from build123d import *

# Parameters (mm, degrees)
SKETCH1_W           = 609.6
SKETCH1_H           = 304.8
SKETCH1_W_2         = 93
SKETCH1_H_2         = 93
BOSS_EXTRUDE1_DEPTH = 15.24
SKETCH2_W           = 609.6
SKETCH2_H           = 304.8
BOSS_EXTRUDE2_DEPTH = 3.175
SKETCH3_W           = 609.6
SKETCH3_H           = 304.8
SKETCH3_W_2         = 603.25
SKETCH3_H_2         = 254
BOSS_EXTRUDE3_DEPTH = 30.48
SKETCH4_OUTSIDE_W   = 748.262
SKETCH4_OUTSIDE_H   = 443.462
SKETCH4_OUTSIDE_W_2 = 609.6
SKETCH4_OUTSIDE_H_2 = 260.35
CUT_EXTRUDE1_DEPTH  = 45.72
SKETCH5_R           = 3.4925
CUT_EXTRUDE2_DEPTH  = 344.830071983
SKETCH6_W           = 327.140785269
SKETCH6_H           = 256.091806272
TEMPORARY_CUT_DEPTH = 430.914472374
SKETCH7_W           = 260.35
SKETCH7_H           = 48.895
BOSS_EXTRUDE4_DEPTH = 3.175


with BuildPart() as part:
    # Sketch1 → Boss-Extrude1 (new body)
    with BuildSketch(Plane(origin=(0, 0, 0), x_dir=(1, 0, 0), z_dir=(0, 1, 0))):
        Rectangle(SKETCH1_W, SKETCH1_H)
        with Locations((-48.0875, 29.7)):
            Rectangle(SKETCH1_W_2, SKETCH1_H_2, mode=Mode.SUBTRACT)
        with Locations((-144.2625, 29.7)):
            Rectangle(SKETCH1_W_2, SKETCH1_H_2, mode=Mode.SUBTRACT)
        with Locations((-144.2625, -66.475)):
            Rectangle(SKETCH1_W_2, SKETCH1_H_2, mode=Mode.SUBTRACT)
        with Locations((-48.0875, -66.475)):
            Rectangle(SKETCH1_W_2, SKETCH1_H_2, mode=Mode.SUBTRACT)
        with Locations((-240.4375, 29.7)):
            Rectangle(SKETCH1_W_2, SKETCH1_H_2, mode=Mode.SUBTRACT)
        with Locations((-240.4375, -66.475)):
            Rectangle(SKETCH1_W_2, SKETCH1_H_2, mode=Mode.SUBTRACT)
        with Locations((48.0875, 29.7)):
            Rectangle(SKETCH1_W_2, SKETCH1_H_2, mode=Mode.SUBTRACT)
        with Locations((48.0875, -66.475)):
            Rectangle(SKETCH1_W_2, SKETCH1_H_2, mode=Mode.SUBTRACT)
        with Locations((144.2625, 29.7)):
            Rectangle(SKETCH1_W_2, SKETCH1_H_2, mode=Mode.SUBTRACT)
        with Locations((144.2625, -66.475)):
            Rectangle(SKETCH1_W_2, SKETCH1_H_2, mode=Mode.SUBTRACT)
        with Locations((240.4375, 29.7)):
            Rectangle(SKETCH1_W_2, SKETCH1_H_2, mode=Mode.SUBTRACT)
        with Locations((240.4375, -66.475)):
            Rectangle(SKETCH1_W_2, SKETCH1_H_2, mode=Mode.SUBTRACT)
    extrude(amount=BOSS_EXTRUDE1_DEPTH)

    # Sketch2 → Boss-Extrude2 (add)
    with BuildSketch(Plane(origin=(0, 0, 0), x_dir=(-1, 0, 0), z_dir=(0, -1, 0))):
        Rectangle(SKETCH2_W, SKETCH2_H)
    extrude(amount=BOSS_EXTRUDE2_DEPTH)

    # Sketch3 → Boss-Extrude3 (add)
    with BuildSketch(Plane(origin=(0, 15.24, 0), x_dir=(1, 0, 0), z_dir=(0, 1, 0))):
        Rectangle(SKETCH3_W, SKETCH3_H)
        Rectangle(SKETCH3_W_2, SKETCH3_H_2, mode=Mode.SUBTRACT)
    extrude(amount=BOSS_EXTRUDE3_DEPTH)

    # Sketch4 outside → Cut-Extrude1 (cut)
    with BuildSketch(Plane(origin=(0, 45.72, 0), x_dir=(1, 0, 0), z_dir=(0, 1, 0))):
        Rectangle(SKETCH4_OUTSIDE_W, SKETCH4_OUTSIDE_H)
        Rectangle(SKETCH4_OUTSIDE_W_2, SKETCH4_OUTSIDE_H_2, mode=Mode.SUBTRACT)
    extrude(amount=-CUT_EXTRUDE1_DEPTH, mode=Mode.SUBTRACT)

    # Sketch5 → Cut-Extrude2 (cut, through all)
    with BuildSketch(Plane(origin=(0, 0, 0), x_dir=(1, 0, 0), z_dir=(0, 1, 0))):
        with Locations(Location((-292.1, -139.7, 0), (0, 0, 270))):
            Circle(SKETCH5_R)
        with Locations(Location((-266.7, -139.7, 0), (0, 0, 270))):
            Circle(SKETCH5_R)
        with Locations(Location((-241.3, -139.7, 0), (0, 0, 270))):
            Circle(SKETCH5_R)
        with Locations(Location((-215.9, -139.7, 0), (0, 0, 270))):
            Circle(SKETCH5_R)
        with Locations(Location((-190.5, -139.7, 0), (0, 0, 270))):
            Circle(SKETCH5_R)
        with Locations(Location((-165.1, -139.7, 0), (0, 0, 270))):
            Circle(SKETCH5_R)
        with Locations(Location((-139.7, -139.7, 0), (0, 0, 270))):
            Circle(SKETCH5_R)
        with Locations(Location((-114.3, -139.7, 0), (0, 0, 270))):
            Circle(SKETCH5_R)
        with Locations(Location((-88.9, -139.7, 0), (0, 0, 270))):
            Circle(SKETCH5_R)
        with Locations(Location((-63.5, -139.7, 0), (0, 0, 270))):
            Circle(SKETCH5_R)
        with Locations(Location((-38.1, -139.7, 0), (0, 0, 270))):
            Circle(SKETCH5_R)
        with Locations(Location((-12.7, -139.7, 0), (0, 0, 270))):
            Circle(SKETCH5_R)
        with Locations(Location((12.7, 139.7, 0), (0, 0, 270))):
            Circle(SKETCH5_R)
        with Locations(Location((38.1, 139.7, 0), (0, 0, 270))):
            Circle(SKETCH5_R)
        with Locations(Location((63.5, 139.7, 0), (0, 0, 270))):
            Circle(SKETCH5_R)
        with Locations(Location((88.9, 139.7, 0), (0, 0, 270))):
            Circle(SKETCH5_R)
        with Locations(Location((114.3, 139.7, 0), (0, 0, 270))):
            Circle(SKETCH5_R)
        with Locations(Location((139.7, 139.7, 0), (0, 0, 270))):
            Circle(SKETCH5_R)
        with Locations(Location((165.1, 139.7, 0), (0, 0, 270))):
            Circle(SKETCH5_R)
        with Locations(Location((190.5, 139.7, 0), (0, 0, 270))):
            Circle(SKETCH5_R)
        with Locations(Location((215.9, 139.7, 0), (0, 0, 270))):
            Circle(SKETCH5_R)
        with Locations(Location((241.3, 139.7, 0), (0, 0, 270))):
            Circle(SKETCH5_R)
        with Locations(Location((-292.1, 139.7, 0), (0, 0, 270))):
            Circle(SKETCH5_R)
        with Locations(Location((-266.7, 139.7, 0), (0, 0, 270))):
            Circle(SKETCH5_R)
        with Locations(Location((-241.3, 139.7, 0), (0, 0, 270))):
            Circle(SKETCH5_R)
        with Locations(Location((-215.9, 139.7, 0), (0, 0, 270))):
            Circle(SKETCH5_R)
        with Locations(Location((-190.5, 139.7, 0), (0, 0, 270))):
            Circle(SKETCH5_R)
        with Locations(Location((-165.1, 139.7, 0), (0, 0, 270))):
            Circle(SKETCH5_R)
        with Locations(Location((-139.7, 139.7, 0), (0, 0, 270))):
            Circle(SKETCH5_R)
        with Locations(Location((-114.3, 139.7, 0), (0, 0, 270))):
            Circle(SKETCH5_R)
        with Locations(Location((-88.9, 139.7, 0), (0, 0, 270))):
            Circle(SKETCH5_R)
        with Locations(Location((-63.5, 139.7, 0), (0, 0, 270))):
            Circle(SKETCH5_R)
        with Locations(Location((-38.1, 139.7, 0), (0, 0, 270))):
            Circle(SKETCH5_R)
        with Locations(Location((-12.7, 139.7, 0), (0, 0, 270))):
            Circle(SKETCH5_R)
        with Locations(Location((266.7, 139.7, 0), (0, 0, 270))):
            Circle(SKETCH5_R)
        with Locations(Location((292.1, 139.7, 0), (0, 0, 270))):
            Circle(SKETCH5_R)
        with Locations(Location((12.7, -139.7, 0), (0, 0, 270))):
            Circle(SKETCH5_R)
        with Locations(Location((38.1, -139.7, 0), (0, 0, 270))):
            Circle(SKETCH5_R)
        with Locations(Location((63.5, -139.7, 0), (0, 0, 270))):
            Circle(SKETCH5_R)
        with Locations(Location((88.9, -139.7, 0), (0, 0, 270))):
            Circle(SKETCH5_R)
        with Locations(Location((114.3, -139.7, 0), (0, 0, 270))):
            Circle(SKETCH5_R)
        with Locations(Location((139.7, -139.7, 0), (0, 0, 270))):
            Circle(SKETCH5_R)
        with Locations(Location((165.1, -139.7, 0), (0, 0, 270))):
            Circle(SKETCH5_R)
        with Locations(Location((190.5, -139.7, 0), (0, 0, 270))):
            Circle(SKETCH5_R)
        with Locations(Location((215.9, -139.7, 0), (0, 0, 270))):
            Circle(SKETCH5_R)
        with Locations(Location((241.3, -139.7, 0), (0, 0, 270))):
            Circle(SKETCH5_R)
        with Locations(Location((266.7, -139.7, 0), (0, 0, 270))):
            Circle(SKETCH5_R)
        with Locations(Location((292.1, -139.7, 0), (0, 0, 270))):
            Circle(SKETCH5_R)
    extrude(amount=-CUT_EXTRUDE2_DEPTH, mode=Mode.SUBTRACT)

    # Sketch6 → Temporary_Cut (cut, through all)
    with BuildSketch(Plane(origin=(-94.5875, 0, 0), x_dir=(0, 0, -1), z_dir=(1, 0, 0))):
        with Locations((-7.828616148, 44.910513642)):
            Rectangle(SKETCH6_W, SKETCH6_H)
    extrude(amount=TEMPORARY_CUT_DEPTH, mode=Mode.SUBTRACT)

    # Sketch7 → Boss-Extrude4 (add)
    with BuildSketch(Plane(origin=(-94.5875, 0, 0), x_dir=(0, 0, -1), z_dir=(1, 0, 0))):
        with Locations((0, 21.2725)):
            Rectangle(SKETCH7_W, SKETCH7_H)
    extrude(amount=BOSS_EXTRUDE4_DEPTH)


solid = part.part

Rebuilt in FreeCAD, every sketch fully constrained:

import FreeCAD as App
import Part
import Sketcher
from FreeCAD import Vector
Q = App.Units.Quantity

doc = App.newDocument("Part")
body = doc.addObject("PartDesign::Body", "Body")

# Sketch on XZ plane
sketch1 = body.newObject("Sketcher::SketchObject", "Sketch")
sketch1.AttachmentSupport = (doc.getObject("XZ_Plane"), [""])
sketch1.MapMode = "FlatFace"
sketch1.addGeometry(Part.LineSegment(Vector(-305, -152, 0), Vector(-305, 152, 0)), False)
sketch1.addGeometry(Part.LineSegment(Vector(-305, 152, 0), Vector(305, 152, 0)), False)
sketch1.addGeometry(Part.LineSegment(Vector(305, 152, 0), Vector(305, -152, 0)), False)
sketch1.addGeometry(Part.LineSegment(Vector(305, -152, 0), Vector(-305, -152, 0)), False)
sketch1.addGeometry(Part.LineSegment(Vector(-194, 113, 0), Vector(-287, 113, 0)), False)
sketch1.addGeometry(Part.LineSegment(Vector(-287, 113, 0), Vector(-287, 20, 0)), False)
sketch1.addGeometry(Part.LineSegment(Vector(-287, 20, 0), Vector(-194, 20, 0)), False)
sketch1.addGeometry(Part.LineSegment(Vector(-194, 20, 0), Vector(-194, 113, 0)), False)
sketch1.addGeometry(Part.LineSegment(Vector(-98, 113, 0), Vector(-191, 113, 0)), False)
sketch1.addGeometry(Part.LineSegment(Vector(-191, 113, 0), Vector(-191, 20, 0)), False)
sketch1.addGeometry(Part.LineSegment(Vector(-191, 20, 0), Vector(-98, 20, 0)), False)
sketch1.addGeometry(Part.LineSegment(Vector(-98, 20, 0), Vector(-98, 113, 0)), False)
sketch1.addGeometry(Part.LineSegment(Vector(-2, 113, 0), Vector(-95, 113, 0)), False)
sketch1.addGeometry(Part.LineSegment(Vector(-95, 113, 0), Vector(-95, 20, 0)), False)
sketch1.addGeometry(Part.LineSegment(Vector(-95, 20, 0), Vector(-2, 20, 0)), False)
sketch1.addGeometry(Part.LineSegment(Vector(-2, 20, 0), Vector(-2, 113, 0)), False)
sketch1.addGeometry(Part.LineSegment(Vector(95, 113, 0), Vector(2, 113, 0)), False)
sketch1.addGeometry(Part.LineSegment(Vector(2, 113, 0), Vector(2, 20, 0)), False)
sketch1.addGeometry(Part.LineSegment(Vector(2, 20, 0), Vector(95, 20, 0)), False)
sketch1.addGeometry(Part.LineSegment(Vector(95, 20, 0), Vector(95, 113, 0)), False)
sketch1.addGeometry(Part.LineSegment(Vector(191, 113, 0), Vector(98, 113, 0)), False)
sketch1.addGeometry(Part.LineSegment(Vector(98, 113, 0), Vector(98, 20, 0)), False)
sketch1.addGeometry(Part.LineSegment(Vector(98, 20, 0), Vector(191, 20, 0)), False)
sketch1.addGeometry(Part.LineSegment(Vector(191, 20, 0), Vector(191, 113, 0)), False)
sketch1.addGeometry(Part.LineSegment(Vector(287, 113, 0), Vector(194, 113, 0)), False)
sketch1.addGeometry(Part.LineSegment(Vector(194, 113, 0), Vector(194, 20, 0)), False)
sketch1.addGeometry(Part.LineSegment(Vector(194, 20, 0), Vector(287, 20, 0)), False)
sketch1.addGeometry(Part.LineSegment(Vector(287, 20, 0), Vector(287, 113, 0)), False)
sketch1.addGeometry(Part.LineSegment(Vector(-194, 17, 0), Vector(-287, 17, 0)), False)
sketch1.addGeometry(Part.LineSegment(Vector(-287, 17, 0), Vector(-287, -76, 0)), False)
sketch1.addGeometry(Part.LineSegment(Vector(-287, -76, 0), Vector(-194, -76, 0)), False)
sketch1.addGeometry(Part.LineSegment(Vector(-194, -76, 0), Vector(-194, 17, 0)), False)
sketch1.addGeometry(Part.LineSegment(Vector(-98, 17, 0), Vector(-191, 17, 0)), False)
sketch1.addGeometry(Part.LineSegment(Vector(-191, 17, 0), Vector(-191, -76, 0)), False)
sketch1.addGeometry(Part.LineSegment(Vector(-191, -76, 0), Vector(-98, -76, 0)), False)
sketch1.addGeometry(Part.LineSegment(Vector(-98, -76, 0), Vector(-98, 17, 0)), False)
sketch1.addGeometry(Part.LineSegment(Vector(-2, 17, 0), Vector(-95, 17, 0)), False)
sketch1.addGeometry(Part.LineSegment(Vector(-95, 17, 0), Vector(-95, -76, 0)), False)
sketch1.addGeometry(Part.LineSegment(Vector(-95, -76, 0), Vector(-2, -76, 0)), False)
sketch1.addGeometry(Part.LineSegment(Vector(-2, -76, 0), Vector(-2, 17, 0)), False)
sketch1.addGeometry(Part.LineSegment(Vector(95, 17, 0), Vector(2, 17, 0)), False)
sketch1.addGeometry(Part.LineSegment(Vector(2, 17, 0), Vector(2, -76, 0)), False)
sketch1.addGeometry(Part.LineSegment(Vector(2, -76, 0), Vector(95, -76, 0)), False)
sketch1.addGeometry(Part.LineSegment(Vector(95, -76, 0), Vector(95, 17, 0)), False)
sketch1.addGeometry(Part.LineSegment(Vector(191, 17, 0), Vector(98, 17, 0)), False)
sketch1.addGeometry(Part.LineSegment(Vector(98, 17, 0), Vector(98, -76, 0)), False)
sketch1.addGeometry(Part.LineSegment(Vector(98, -76, 0), Vector(191, -76, 0)), False)
sketch1.addGeometry(Part.LineSegment(Vector(191, -76, 0), Vector(191, 17, 0)), False)
sketch1.addGeometry(Part.LineSegment(Vector(287, 17, 0), Vector(194, 17, 0)), False)
sketch1.addGeometry(Part.LineSegment(Vector(194, 17, 0), Vector(194, -76, 0)), False)
sketch1.addGeometry(Part.LineSegment(Vector(194, -76, 0), Vector(287, -76, 0)), False)
sketch1.addGeometry(Part.LineSegment(Vector(287, -76, 0), Vector(287, 17, 0)), False)
sketch1.addConstraint(Sketcher.Constraint("Coincident", 0, 2, 1, 1))
sketch1.addConstraint(Sketcher.Constraint("Coincident", 1, 2, 2, 1))
sketch1.addConstraint(Sketcher.Constraint("Coincident", 2, 2, 3, 1))
sketch1.addConstraint(Sketcher.Constraint("Coincident", 3, 2, 0, 1))
sketch1.addConstraint(Sketcher.Constraint("Coincident", 4, 2, 5, 1))
sketch1.addConstraint(Sketcher.Constraint("Coincident", 5, 2, 6, 1))
sketch1.addConstraint(Sketcher.Constraint("Coincident", 6, 2, 7, 1))
sketch1.addConstraint(Sketcher.Constraint("Coincident", 7, 2, 4, 1))
sketch1.addConstraint(Sketcher.Constraint("Coincident", 8, 2, 9, 1))
sketch1.addConstraint(Sketcher.Constraint("Coincident", 9, 2, 10, 1))
sketch1.addConstraint(Sketcher.Constraint("Coincident", 10, 2, 11, 1))
sketch1.addConstraint(Sketcher.Constraint("Coincident", 11, 2, 8, 1))
sketch1.addConstraint(Sketcher.Constraint("Coincident", 12, 2, 13, 1))
sketch1.addConstraint(Sketcher.Constraint("Coincident", 13, 2, 14, 1))
sketch1.addConstraint(Sketcher.Constraint("Coincident", 14, 2, 15, 1))
sketch1.addConstraint(Sketcher.Constraint("Coincident", 15, 2, 12, 1))
sketch1.addConstraint(Sketcher.Constraint("Coincident", 16, 2, 17, 1))
sketch1.addConstraint(Sketcher.Constraint("Coincident", 17, 2, 18, 1))
sketch1.addConstraint(Sketcher.Constraint("Coincident", 18, 2, 19, 1))
sketch1.addConstraint(Sketcher.Constraint("Coincident", 19, 2, 16, 1))
sketch1.addConstraint(Sketcher.Constraint("Coincident", 20, 2, 21, 1))
sketch1.addConstraint(Sketcher.Constraint("Coincident", 21, 2, 22, 1))
sketch1.addConstraint(Sketcher.Constraint("Coincident", 22, 2, 23, 1))
sketch1.addConstraint(Sketcher.Constraint("Coincident", 23, 2, 20, 1))
sketch1.addConstraint(Sketcher.Constraint("Coincident", 24, 2, 25, 1))
sketch1.addConstraint(Sketcher.Constraint("Coincident", 25, 2, 26, 1))
sketch1.addConstraint(Sketcher.Constraint("Coincident", 26, 2, 27, 1))
sketch1.addConstraint(Sketcher.Constraint("Coincident", 27, 2, 24, 1))
sketch1.addConstraint(Sketcher.Constraint("Coincident", 28, 2, 29, 1))
sketch1.addConstraint(Sketcher.Constraint("Coincident", 29, 2, 30, 1))
sketch1.addConstraint(Sketcher.Constraint("Coincident", 30, 2, 31, 1))
sketch1.addConstraint(Sketcher.Constraint("Coincident", 31, 2, 28, 1))
sketch1.addConstraint(Sketcher.Constraint("Coincident", 32, 2, 33, 1))
sketch1.addConstraint(Sketcher.Constraint("Coincident", 33, 2, 34, 1))
sketch1.addConstraint(Sketcher.Constraint("Coincident", 34, 2, 35, 1))
sketch1.addConstraint(Sketcher.Constraint("Coincident", 35, 2, 32, 1))
sketch1.addConstraint(Sketcher.Constraint("Coincident", 36, 2, 37, 1))
sketch1.addConstraint(Sketcher.Constraint("Coincident", 37, 2, 38, 1))
sketch1.addConstraint(Sketcher.Constraint("Coincident", 38, 2, 39, 1))
sketch1.addConstraint(Sketcher.Constraint("Coincident", 39, 2, 36, 1))
sketch1.addConstraint(Sketcher.Constraint("Coincident", 40, 2, 41, 1))
sketch1.addConstraint(Sketcher.Constraint("Coincident", 41, 2, 42, 1))
sketch1.addConstraint(Sketcher.Constraint("Coincident", 42, 2, 43, 1))
sketch1.addConstraint(Sketcher.Constraint("Coincident", 43, 2, 40, 1))
sketch1.addConstraint(Sketcher.Constraint("Coincident", 44, 2, 45, 1))
sketch1.addConstraint(Sketcher.Constraint("Coincident", 45, 2, 46, 1))
sketch1.addConstraint(Sketcher.Constraint("Coincident", 46, 2, 47, 1))
sketch1.addConstraint(Sketcher.Constraint("Coincident", 47, 2, 44, 1))
sketch1.addConstraint(Sketcher.Constraint("Coincident", 48, 2, 49, 1))
sketch1.addConstraint(Sketcher.Constraint("Coincident", 49, 2, 50, 1))
sketch1.addConstraint(Sketcher.Constraint("Coincident", 50, 2, 51, 1))
sketch1.addConstraint(Sketcher.Constraint("Coincident", 51, 2, 48, 1))
sketch1.addConstraint(Sketcher.Constraint("Vertical", 0))
sketch1.addConstraint(Sketcher.Constraint("Horizontal", 1))
sketch1.addConstraint(Sketcher.Constraint("Vertical", 2))
sketch1.addConstraint(Sketcher.Constraint("Horizontal", 3))
sketch1.addConstraint(Sketcher.Constraint("Horizontal", 4))
sketch1.addConstraint(Sketcher.Constraint("Vertical", 5))
sketch1.addConstraint(Sketcher.Constraint("Horizontal", 6))
sketch1.addConstraint(Sketcher.Constraint("Vertical", 7))
sketch1.addConstraint(Sketcher.Constraint("Horizontal", 8))
sketch1.addConstraint(Sketcher.Constraint("Vertical", 9))
sketch1.addConstraint(Sketcher.Constraint("Horizontal", 10))
sketch1.addConstraint(Sketcher.Constraint("Vertical", 11))
sketch1.addConstraint(Sketcher.Constraint("Horizontal", 12))
sketch1.addConstraint(Sketcher.Constraint("Vertical", 13))
sketch1.addConstraint(Sketcher.Constraint("Horizontal", 14))
sketch1.addConstraint(Sketcher.Constraint("Vertical", 15))
sketch1.addConstraint(Sketcher.Constraint("Horizontal", 16))
sketch1.addConstraint(Sketcher.Constraint("Vertical", 17))
sketch1.addConstraint(Sketcher.Constraint("Horizontal", 18))
sketch1.addConstraint(Sketcher.Constraint("Vertical", 19))
sketch1.addConstraint(Sketcher.Constraint("Horizontal", 20))
sketch1.addConstraint(Sketcher.Constraint("Vertical", 21))
sketch1.addConstraint(Sketcher.Constraint("Horizontal", 22))
sketch1.addConstraint(Sketcher.Constraint("Vertical", 23))
sketch1.addConstraint(Sketcher.Constraint("Horizontal", 24))
sketch1.addConstraint(Sketcher.Constraint("Vertical", 25))
sketch1.addConstraint(Sketcher.Constraint("Horizontal", 26))
sketch1.addConstraint(Sketcher.Constraint("Vertical", 27))
sketch1.addConstraint(Sketcher.Constraint("Horizontal", 28))
sketch1.addConstraint(Sketcher.Constraint("Vertical", 29))
sketch1.addConstraint(Sketcher.Constraint("Horizontal", 30))
sketch1.addConstraint(Sketcher.Constraint("Vertical", 31))
sketch1.addConstraint(Sketcher.Constraint("Horizontal", 32))
sketch1.addConstraint(Sketcher.Constraint("Vertical", 33))
sketch1.addConstraint(Sketcher.Constraint("Horizontal", 34))
sketch1.addConstraint(Sketcher.Constraint("Vertical", 35))
sketch1.addConstraint(Sketcher.Constraint("Horizontal", 36))
sketch1.addConstraint(Sketcher.Constraint("Vertical", 37))
sketch1.addConstraint(Sketcher.Constraint("Horizontal", 38))
sketch1.addConstraint(Sketcher.Constraint("Vertical", 39))
sketch1.addConstraint(Sketcher.Constraint("Horizontal", 40))
sketch1.addConstraint(Sketcher.Constraint("Vertical", 41))
sketch1.addConstraint(Sketcher.Constraint("Horizontal", 42))
sketch1.addConstraint(Sketcher.Constraint("Vertical", 43))
sketch1.addConstraint(Sketcher.Constraint("Horizontal", 44))
sketch1.addConstraint(Sketcher.Constraint("Vertical", 45))
sketch1.addConstraint(Sketcher.Constraint("Horizontal", 46))
sketch1.addConstraint(Sketcher.Constraint("Vertical", 47))
sketch1.addConstraint(Sketcher.Constraint("Horizontal", 48))
sketch1.addConstraint(Sketcher.Constraint("Vertical", 49))
sketch1.addConstraint(Sketcher.Constraint("Horizontal", 50))
sketch1.addConstraint(Sketcher.Constraint("Vertical", 51))
sketch1.addConstraint(Sketcher.Constraint("Symmetric", 0, 2, 2, 2, -1, 1))
sketch1.addConstraint(Sketcher.Constraint("Symmetric", 15, 2, 16, 2, -2))
sketch1.addConstraint(Sketcher.Constraint("Symmetric", 13, 2, 18, 2, -2))
sketch1.addConstraint(Sketcher.Constraint("Symmetric", 11, 2, 20, 2, -2))
sketch1.addConstraint(Sketcher.Constraint("Symmetric", 9, 2, 22, 2, -2))
sketch1.addConstraint(Sketcher.Constraint("Symmetric", 7, 2, 24, 2, -2))
sketch1.addConstraint(Sketcher.Constraint("Symmetric", 5, 2, 26, 2, -2))
sketch1.addConstraint(Sketcher.Constraint("Symmetric", 39, 2, 40, 2, -2))
sketch1.addConstraint(Sketcher.Constraint("Symmetric", 37, 2, 42, 2, -2))
sketch1.addConstraint(Sketcher.Constraint("Symmetric", 35, 2, 44, 2, -2))
sketch1.addConstraint(Sketcher.Constraint("Symmetric", 33, 2, 46, 2, -2))
sketch1.addConstraint(Sketcher.Constraint("Symmetric", 31, 2, 48, 2, -2))
sketch1.addConstraint(Sketcher.Constraint("Symmetric", 29, 2, 50, 2, -2))
sketch1.addConstraint(Sketcher.Constraint("Horizontal", 7, 2, 8, 2))
sketch1.addConstraint(Sketcher.Constraint("Horizontal", 6, 2, 9, 2))
sketch1.addConstraint(Sketcher.Constraint("Horizontal", 11, 2, 12, 2))
sketch1.addConstraint(Sketcher.Constraint("Horizontal", 10, 2, 13, 2))
sketch1.addConstraint(Sketcher.Constraint("Horizontal", 31, 2, 32, 2))
sketch1.addConstraint(Sketcher.Constraint("Horizontal", 30, 2, 33, 2))
sketch1.addConstraint(Sketcher.Constraint("Horizontal", 35, 2, 36, 2))
sketch1.addConstraint(Sketcher.Constraint("Horizontal", 34, 2, 37, 2))
sketch1.addConstraint(Sketcher.Constraint("Vertical", 5, 2, 28, 2))
sketch1.addConstraint(Sketcher.Constraint("Vertical", 7, 2, 30, 2))
sketch1.addConstraint(Sketcher.Constraint("Vertical", 9, 2, 32, 2))
sketch1.addConstraint(Sketcher.Constraint("Vertical", 11, 2, 34, 2))
sketch1.addConstraint(Sketcher.Constraint("Vertical", 13, 2, 36, 2))
sketch1.addConstraint(Sketcher.Constraint("Vertical", 15, 2, 38, 2))
sketch1.addConstraint(Sketcher.Constraint("Equal", 6, 8))
sketch1.addConstraint(Sketcher.Constraint("Equal", 10, 12))
sketch1.addConstraint(Sketcher.Constraint("Equal", 50, 5))
sketch1.addConstraint(Sketcher.Constraint("Equal", 27, 29))
sketch1.addConstraint(Sketcher.Constraint("DistanceX", 1, 1, 1, 2, Q("24 in")))
sketch1.addConstraint(Sketcher.Constraint("DistanceY", 0, 1, 0, 2, Q("12 in")))
sketch1.addConstraint(Sketcher.Constraint("DistanceY", 29, 2, -1, 1, Q("3 in")))
sketch1.addConstraint(Sketcher.Constraint("DistanceX", 14, 2, -1, 1, Q("0.0625 in")))
sketch1.addConstraint(Sketcher.Constraint("DistanceX", 7, 2, 8, 2, Q("0.125 in")))
sketch1.addConstraint(Sketcher.Constraint("DistanceX", 11, 2, 12, 2, Q("0.125 in")))
sketch1.addConstraint(Sketcher.Constraint("DistanceY", 28, 2, 5, 2, Q("0.125 in")))
sketch1.addConstraint(Sketcher.Constraint("DistanceX", 4, 2, 4, 1, 93.0))
pad1 = body.newObject("PartDesign::Pad", "Pad")
pad1.Profile = sketch1
pad1.Length = Q("0.6 in")
pad1.Reversed = True

# Sketch on XZ plane
sketch2 = body.newObject("Sketcher::SketchObject", "Sketch001")
sketch2.AttachmentSupport = (doc.getObject("XZ_Plane"), [""])
sketch2.MapMode = "FlatFace"
sketch2.addGeometry(Part.LineSegment(Vector(305, -152, 0), Vector(305, 152, 0)), False)
sketch2.addGeometry(Part.LineSegment(Vector(305, 152, 0), Vector(-305, 152, 0)), False)
sketch2.addGeometry(Part.LineSegment(Vector(-305, 152, 0), Vector(-305, -152, 0)), False)
sketch2.addGeometry(Part.LineSegment(Vector(-305, -152, 0), Vector(305, -152, 0)), False)
sketch2.addConstraint(Sketcher.Constraint("Coincident", 0, 2, 1, 1))
sketch2.addConstraint(Sketcher.Constraint("Coincident", 1, 2, 2, 1))
sketch2.addConstraint(Sketcher.Constraint("Coincident", 2, 2, 3, 1))
sketch2.addConstraint(Sketcher.Constraint("Coincident", 3, 2, 0, 1))
sketch2.addConstraint(Sketcher.Constraint("Vertical", 0))
sketch2.addConstraint(Sketcher.Constraint("Horizontal", 1))
sketch2.addConstraint(Sketcher.Constraint("Vertical", 2))
sketch2.addConstraint(Sketcher.Constraint("Horizontal", 3))
sketch2.addConstraint(Sketcher.Constraint("Symmetric", 0, 2, 2, 2, -1, 1))
sketch2.addConstraint(Sketcher.Constraint("DistanceX", 1, 2, 1, 1, Q("24 in")))
sketch2.addConstraint(Sketcher.Constraint("DistanceY", 0, 1, 0, 2, Q("12 in")))
pad2 = body.newObject("PartDesign::Pad", "Pad001")
pad2.Profile = sketch2
pad2.Length = Q("0.125 in")

# Sketch on XZ plane
sketch3 = body.newObject("Sketcher::SketchObject", "Sketch002")
sketch3.AttachmentSupport = (doc.getObject("XZ_Plane"), [""])
sketch3.MapMode = "FlatFace"
sketch3.AttachmentOffset = App.Placement(Vector(0, 0, -0.6 * 25.4), App.Rotation())
sketch3.addGeometry(Part.LineSegment(Vector(-305, -152, 0), Vector(-305, 152, 0)), False)
sketch3.addGeometry(Part.LineSegment(Vector(-305, 152, 0), Vector(305, 152, 0)), False)
sketch3.addGeometry(Part.LineSegment(Vector(305, 152, 0), Vector(305, -152, 0)), False)
sketch3.addGeometry(Part.LineSegment(Vector(305, -152, 0), Vector(-305, -152, 0)), False)
sketch3.addGeometry(Part.LineSegment(Vector(302, 127, 0), Vector(-302, 127, 0)), False)
sketch3.addGeometry(Part.LineSegment(Vector(-302, 127, 0), Vector(-302, -127, 0)), False)
sketch3.addGeometry(Part.LineSegment(Vector(-302, -127, 0), Vector(302, -127, 0)), False)
sketch3.addGeometry(Part.LineSegment(Vector(302, -127, 0), Vector(302, 127, 0)), False)
sketch3.addConstraint(Sketcher.Constraint("Coincident", 0, 2, 1, 1))
sketch3.addConstraint(Sketcher.Constraint("Coincident", 1, 2, 2, 1))
sketch3.addConstraint(Sketcher.Constraint("Coincident", 2, 2, 3, 1))
sketch3.addConstraint(Sketcher.Constraint("Coincident", 3, 2, 0, 1))
sketch3.addConstraint(Sketcher.Constraint("Coincident", 4, 2, 5, 1))
sketch3.addConstraint(Sketcher.Constraint("Coincident", 5, 2, 6, 1))
sketch3.addConstraint(Sketcher.Constraint("Coincident", 6, 2, 7, 1))
sketch3.addConstraint(Sketcher.Constraint("Coincident", 7, 2, 4, 1))
sketch3.addConstraint(Sketcher.Constraint("Vertical", 0))
sketch3.addConstraint(Sketcher.Constraint("Horizontal", 1))
sketch3.addConstraint(Sketcher.Constraint("Vertical", 2))
sketch3.addConstraint(Sketcher.Constraint("Horizontal", 3))
sketch3.addConstraint(Sketcher.Constraint("Horizontal", 4))
sketch3.addConstraint(Sketcher.Constraint("Vertical", 5))
sketch3.addConstraint(Sketcher.Constraint("Horizontal", 6))
sketch3.addConstraint(Sketcher.Constraint("Vertical", 7))
sketch3.addConstraint(Sketcher.Constraint("Symmetric", 0, 2, 2, 2, -1, 1))
sketch3.addConstraint(Sketcher.Constraint("Symmetric", 4, 2, 6, 2, -1, 1))
sketch3.addConstraint(Sketcher.Constraint("DistanceX", 1, 1, 1, 2, Q("24 in")))
sketch3.addConstraint(Sketcher.Constraint("DistanceY", 0, 1, 0, 2, Q("12 in")))
sketch3.addConstraint(Sketcher.Constraint("DistanceY", 5, 2, 5, 1, Q("10 in")))
sketch3.addConstraint(Sketcher.Constraint("DistanceX", 4, 2, 4, 1, Q("23.75 in")))
pad3 = body.newObject("PartDesign::Pad", "Pad002")
pad3.Profile = sketch3
pad3.Length = Q("1.2 in")
pad3.Reversed = True

# Sketch on XZ plane
sketch4 = body.newObject("Sketcher::SketchObject", "Sketch003")
sketch4.AttachmentSupport = (doc.getObject("XZ_Plane"), [""])
sketch4.MapMode = "FlatFace"
sketch4.AttachmentOffset = App.Placement(Vector(0, 0, -1.8 * 25.4), App.Rotation())
sketch4.addGeometry(Part.LineSegment(Vector(-374, -222, 0), Vector(-374, 222, 0)), False)
sketch4.addGeometry(Part.LineSegment(Vector(-374, 222, 0), Vector(374, 222, 0)), False)
sketch4.addGeometry(Part.LineSegment(Vector(374, 222, 0), Vector(374, -222, 0)), False)
sketch4.addGeometry(Part.LineSegment(Vector(374, -222, 0), Vector(-374, -222, 0)), False)
sketch4.addGeometry(Part.LineSegment(Vector(305, 130, 0), Vector(-305, 130, 0)), False)
sketch4.addGeometry(Part.LineSegment(Vector(-305, 130, 0), Vector(-305, -130, 0)), False)
sketch4.addGeometry(Part.LineSegment(Vector(-305, -130, 0), Vector(305, -130, 0)), False)
sketch4.addGeometry(Part.LineSegment(Vector(305, -130, 0), Vector(305, 130, 0)), False)
sketch4.addConstraint(Sketcher.Constraint("Coincident", 0, 2, 1, 1))
sketch4.addConstraint(Sketcher.Constraint("Coincident", 1, 2, 2, 1))
sketch4.addConstraint(Sketcher.Constraint("Coincident", 2, 2, 3, 1))
sketch4.addConstraint(Sketcher.Constraint("Coincident", 3, 2, 0, 1))
sketch4.addConstraint(Sketcher.Constraint("Coincident", 4, 2, 5, 1))
sketch4.addConstraint(Sketcher.Constraint("Coincident", 5, 2, 6, 1))
sketch4.addConstraint(Sketcher.Constraint("Coincident", 6, 2, 7, 1))
sketch4.addConstraint(Sketcher.Constraint("Coincident", 7, 2, 4, 1))
sketch4.addConstraint(Sketcher.Constraint("Vertical", 0))
sketch4.addConstraint(Sketcher.Constraint("Horizontal", 1))
sketch4.addConstraint(Sketcher.Constraint("Vertical", 2))
sketch4.addConstraint(Sketcher.Constraint("Horizontal", 3))
sketch4.addConstraint(Sketcher.Constraint("Horizontal", 4))
sketch4.addConstraint(Sketcher.Constraint("Vertical", 5))
sketch4.addConstraint(Sketcher.Constraint("Horizontal", 6))
sketch4.addConstraint(Sketcher.Constraint("Vertical", 7))
sketch4.addConstraint(Sketcher.Constraint("Symmetric", 0, 2, 2, 2, -1, 1))
sketch4.addConstraint(Sketcher.Constraint("Symmetric", 4, 2, 6, 2, -1, 1))
sketch4.addConstraint(Sketcher.Constraint("DistanceX", 4, 2, 4, 1, Q("24 in")))
sketch4.addConstraint(Sketcher.Constraint("DistanceY", 5, 2, 5, 1, Q("10.25 in")))
sketch4.addConstraint(Sketcher.Constraint("DistanceX", 1, 1, 1, 2, 748.262))
sketch4.addConstraint(Sketcher.Constraint("DistanceY", 0, 1, 0, 2, 443.462))
pocket1 = body.newObject("PartDesign::Pocket", "Pocket")
pocket1.Profile = sketch4
pocket1.Length = Q("1.8 in")
pocket1.Reversed = True

# Sketch on XZ plane
sketch5 = body.newObject("Sketcher::SketchObject", "Sketch004")
sketch5.AttachmentSupport = (doc.getObject("XZ_Plane"), [""])
sketch5.MapMode = "FlatFace"
sketch5.addGeometry(Part.Circle(Vector(-292.1, 139.7, 0), Vector(0, 0, 1), 3.5), False)
sketch5.addGeometry(Part.Circle(Vector(-266.7, 139.7, 0), Vector(0, 0, 1), 3.5), False)
sketch5.addGeometry(Part.Circle(Vector(-241.3, 139.7, 0), Vector(0, 0, 1), 3.5), False)
sketch5.addGeometry(Part.Circle(Vector(-215.9, 139.7, 0), Vector(0, 0, 1), 3.5), False)
sketch5.addGeometry(Part.Circle(Vector(-190.5, 139.7, 0), Vector(0, 0, 1), 3.5), False)
sketch5.addGeometry(Part.Circle(Vector(-165.1, 139.7, 0), Vector(0, 0, 1), 3.5), False)
sketch5.addGeometry(Part.Circle(Vector(-139.7, 139.7, 0), Vector(0, 0, 1), 3.5), False)
sketch5.addGeometry(Part.Circle(Vector(-114.3, 139.7, 0), Vector(0, 0, 1), 3.5), False)
sketch5.addGeometry(Part.Circle(Vector(-88.9, 139.7, 0), Vector(0, 0, 1), 3.5), False)
sketch5.addGeometry(Part.Circle(Vector(-63.5, 139.7, 0), Vector(0, 0, 1), 3.5), False)
sketch5.addGeometry(Part.Circle(Vector(-38.1, 139.7, 0), Vector(0, 0, 1), 3.5), False)
sketch5.addGeometry(Part.Circle(Vector(-12.7, 139.7, 0), Vector(0, 0, 1), 3.5), False)
sketch5.addGeometry(Part.Circle(Vector(12.7, -139.7, 0), Vector(0, 0, 1), 3.5), False)
sketch5.addGeometry(Part.Circle(Vector(38.1, -139.7, 0), Vector(0, 0, 1), 3.5), False)
sketch5.addGeometry(Part.Circle(Vector(63.5, -139.7, 0), Vector(0, 0, 1), 3.5), False)
sketch5.addGeometry(Part.Circle(Vector(88.9, -139.7, 0), Vector(0, 0, 1), 3.5), False)
sketch5.addGeometry(Part.Circle(Vector(114.3, -139.7, 0), Vector(0, 0, 1), 3.5), False)
sketch5.addGeometry(Part.Circle(Vector(139.7, -139.7, 0), Vector(0, 0, 1), 3.5), False)
sketch5.addGeometry(Part.Circle(Vector(165.1, -139.7, 0), Vector(0, 0, 1), 3.5), False)
sketch5.addGeometry(Part.Circle(Vector(190.5, -139.7, 0), Vector(0, 0, 1), 3.5), False)
sketch5.addGeometry(Part.Circle(Vector(215.9, -139.7, 0), Vector(0, 0, 1), 3.5), False)
sketch5.addGeometry(Part.Circle(Vector(241.3, -139.7, 0), Vector(0, 0, 1), 3.5), False)
sketch5.addGeometry(Part.Circle(Vector(-292.1, -139.7, 0), Vector(0, 0, 1), 3.5), False)
sketch5.addGeometry(Part.Circle(Vector(-266.7, -139.7, 0), Vector(0, 0, 1), 3.5), False)
sketch5.addGeometry(Part.Circle(Vector(-241.3, -139.7, 0), Vector(0, 0, 1), 3.5), False)
sketch5.addGeometry(Part.Circle(Vector(-215.9, -139.7, 0), Vector(0, 0, 1), 3.5), False)
sketch5.addGeometry(Part.Circle(Vector(-190.5, -139.7, 0), Vector(0, 0, 1), 3.5), False)
sketch5.addGeometry(Part.Circle(Vector(-165.1, -139.7, 0), Vector(0, 0, 1), 3.5), False)
sketch5.addGeometry(Part.Circle(Vector(-139.7, -139.7, 0), Vector(0, 0, 1), 3.5), False)
sketch5.addGeometry(Part.Circle(Vector(-114.3, -139.7, 0), Vector(0, 0, 1), 3.5), False)
sketch5.addGeometry(Part.Circle(Vector(-88.9, -139.7, 0), Vector(0, 0, 1), 3.5), False)
sketch5.addGeometry(Part.Circle(Vector(-63.5, -139.7, 0), Vector(0, 0, 1), 3.5), False)
sketch5.addGeometry(Part.Circle(Vector(-38.1, -139.7, 0), Vector(0, 0, 1), 3.5), False)
sketch5.addGeometry(Part.Circle(Vector(-12.7, -139.7, 0), Vector(0, 0, 1), 3.5), False)
sketch5.addGeometry(Part.Circle(Vector(266.7, -139.7, 0), Vector(0, 0, 1), 3.5), False)
sketch5.addGeometry(Part.Circle(Vector(292.1, -139.7, 0), Vector(0, 0, 1), 3.5), False)
sketch5.addGeometry(Part.Circle(Vector(12.7, 139.7, 0), Vector(0, 0, 1), 3.5), False)
sketch5.addGeometry(Part.Circle(Vector(38.1, 139.7, 0), Vector(0, 0, 1), 3.5), False)
sketch5.addGeometry(Part.Circle(Vector(63.5, 139.7, 0), Vector(0, 0, 1), 3.5), False)
sketch5.addGeometry(Part.Circle(Vector(88.9, 139.7, 0), Vector(0, 0, 1), 3.5), False)
sketch5.addGeometry(Part.Circle(Vector(114.3, 139.7, 0), Vector(0, 0, 1), 3.5), False)
sketch5.addGeometry(Part.Circle(Vector(139.7, 139.7, 0), Vector(0, 0, 1), 3.5), False)
sketch5.addGeometry(Part.Circle(Vector(165.1, 139.7, 0), Vector(0, 0, 1), 3.5), False)
sketch5.addGeometry(Part.Circle(Vector(190.5, 139.7, 0), Vector(0, 0, 1), 3.5), False)
sketch5.addGeometry(Part.Circle(Vector(215.9, 139.7, 0), Vector(0, 0, 1), 3.5), False)
sketch5.addGeometry(Part.Circle(Vector(241.3, 139.7, 0), Vector(0, 0, 1), 3.5), False)
sketch5.addGeometry(Part.Circle(Vector(266.7, 139.7, 0), Vector(0, 0, 1), 3.5), False)
sketch5.addGeometry(Part.Circle(Vector(292.1, 139.7, 0), Vector(0, 0, 1), 3.5), False)
sketch5.addConstraint(Sketcher.Constraint("Equal", 0, 1))
sketch5.addConstraint(Sketcher.Constraint("Equal", 1, 2))
sketch5.addConstraint(Sketcher.Constraint("Equal", 2, 3))
sketch5.addConstraint(Sketcher.Constraint("Equal", 3, 4))
sketch5.addConstraint(Sketcher.Constraint("Equal", 4, 5))
sketch5.addConstraint(Sketcher.Constraint("Equal", 5, 6))
sketch5.addConstraint(Sketcher.Constraint("Equal", 6, 7))
sketch5.addConstraint(Sketcher.Constraint("Equal", 7, 8))
sketch5.addConstraint(Sketcher.Constraint("Equal", 8, 9))
sketch5.addConstraint(Sketcher.Constraint("Equal", 9, 10))
sketch5.addConstraint(Sketcher.Constraint("Equal", 10, 11))
sketch5.addConstraint(Sketcher.Constraint("Equal", 11, 12))
sketch5.addConstraint(Sketcher.Constraint("Equal", 12, 13))
sketch5.addConstraint(Sketcher.Constraint("Equal", 13, 14))
sketch5.addConstraint(Sketcher.Constraint("Equal", 14, 15))
sketch5.addConstraint(Sketcher.Constraint("Equal", 15, 16))
sketch5.addConstraint(Sketcher.Constraint("Equal", 16, 17))
sketch5.addConstraint(Sketcher.Constraint("Equal", 17, 18))
sketch5.addConstraint(Sketcher.Constraint("Equal", 18, 19))
sketch5.addConstraint(Sketcher.Constraint("Equal", 19, 20))
sketch5.addConstraint(Sketcher.Constraint("Equal", 20, 21))
sketch5.addConstraint(Sketcher.Constraint("Equal", 21, 22))
sketch5.addConstraint(Sketcher.Constraint("Equal", 22, 23))
sketch5.addConstraint(Sketcher.Constraint("Equal", 23, 24))
sketch5.addConstraint(Sketcher.Constraint("Equal", 24, 25))
sketch5.addConstraint(Sketcher.Constraint("Equal", 25, 26))
sketch5.addConstraint(Sketcher.Constraint("Equal", 26, 27))
sketch5.addConstraint(Sketcher.Constraint("Equal", 27, 28))
sketch5.addConstraint(Sketcher.Constraint("Equal", 28, 29))
sketch5.addConstraint(Sketcher.Constraint("Equal", 29, 30))
sketch5.addConstraint(Sketcher.Constraint("Equal", 30, 31))
sketch5.addConstraint(Sketcher.Constraint("Equal", 31, 32))
sketch5.addConstraint(Sketcher.Constraint("Equal", 32, 33))
sketch5.addConstraint(Sketcher.Constraint("Equal", 33, 34))
sketch5.addConstraint(Sketcher.Constraint("Equal", 34, 35))
sketch5.addConstraint(Sketcher.Constraint("Equal", 35, 36))
sketch5.addConstraint(Sketcher.Constraint("Equal", 36, 37))
sketch5.addConstraint(Sketcher.Constraint("Equal", 37, 38))
sketch5.addConstraint(Sketcher.Constraint("Equal", 38, 39))
sketch5.addConstraint(Sketcher.Constraint("Equal", 39, 40))
sketch5.addConstraint(Sketcher.Constraint("Equal", 40, 41))
sketch5.addConstraint(Sketcher.Constraint("Equal", 41, 42))
sketch5.addConstraint(Sketcher.Constraint("Equal", 42, 43))
sketch5.addConstraint(Sketcher.Constraint("Equal", 43, 44))
sketch5.addConstraint(Sketcher.Constraint("Equal", 44, 45))
sketch5.addConstraint(Sketcher.Constraint("Equal", 45, 46))
sketch5.addConstraint(Sketcher.Constraint("Equal", 46, 47))
sketch5.addConstraint(Sketcher.Constraint("Symmetric", 11, 3, 12, 3, -1, 1))
sketch5.addConstraint(Sketcher.Constraint("Symmetric", 10, 3, 13, 3, -1, 1))
sketch5.addConstraint(Sketcher.Constraint("Symmetric", 9, 3, 14, 3, -1, 1))
sketch5.addConstraint(Sketcher.Constraint("Symmetric", 8, 3, 15, 3, -1, 1))
sketch5.addConstraint(Sketcher.Constraint("Symmetric", 7, 3, 16, 3, -1, 1))
sketch5.addConstraint(Sketcher.Constraint("Symmetric", 6, 3, 17, 3, -1, 1))
sketch5.addConstraint(Sketcher.Constraint("Symmetric", 5, 3, 18, 3, -1, 1))
sketch5.addConstraint(Sketcher.Constraint("Symmetric", 4, 3, 19, 3, -1, 1))
sketch5.addConstraint(Sketcher.Constraint("Symmetric", 3, 3, 20, 3, -1, 1))
sketch5.addConstraint(Sketcher.Constraint("Symmetric", 2, 3, 21, 3, -1, 1))
sketch5.addConstraint(Sketcher.Constraint("Symmetric", 1, 3, 34, 3, -1, 1))
sketch5.addConstraint(Sketcher.Constraint("Symmetric", 0, 3, 35, 3, -1, 1))
sketch5.addConstraint(Sketcher.Constraint("Symmetric", 33, 3, 36, 3, -1, 1))
sketch5.addConstraint(Sketcher.Constraint("Symmetric", 32, 3, 37, 3, -1, 1))
sketch5.addConstraint(Sketcher.Constraint("Symmetric", 31, 3, 38, 3, -1, 1))
sketch5.addConstraint(Sketcher.Constraint("Symmetric", 30, 3, 39, 3, -1, 1))
sketch5.addConstraint(Sketcher.Constraint("Symmetric", 29, 3, 40, 3, -1, 1))
sketch5.addConstraint(Sketcher.Constraint("Symmetric", 28, 3, 41, 3, -1, 1))
sketch5.addConstraint(Sketcher.Constraint("Symmetric", 27, 3, 42, 3, -1, 1))
sketch5.addConstraint(Sketcher.Constraint("Symmetric", 26, 3, 43, 3, -1, 1))
sketch5.addConstraint(Sketcher.Constraint("Symmetric", 25, 3, 44, 3, -1, 1))
sketch5.addConstraint(Sketcher.Constraint("Symmetric", 24, 3, 45, 3, -1, 1))
sketch5.addConstraint(Sketcher.Constraint("Symmetric", 23, 3, 46, 3, -1, 1))
sketch5.addConstraint(Sketcher.Constraint("Symmetric", 22, 3, 47, 3, -1, 1))
sketch5.addConstraint(Sketcher.Constraint("Symmetric", 21, 3, 24, 3, -2))
sketch5.addConstraint(Sketcher.Constraint("Symmetric", 20, 3, 25, 3, -2))
sketch5.addConstraint(Sketcher.Constraint("Symmetric", 19, 3, 26, 3, -2))
sketch5.addConstraint(Sketcher.Constraint("Symmetric", 18, 3, 27, 3, -2))
sketch5.addConstraint(Sketcher.Constraint("Symmetric", 17, 3, 28, 3, -2))
sketch5.addConstraint(Sketcher.Constraint("Symmetric", 16, 3, 29, 3, -2))
sketch5.addConstraint(Sketcher.Constraint("Symmetric", 15, 3, 30, 3, -2))
sketch5.addConstraint(Sketcher.Constraint("Symmetric", 14, 3, 31, 3, -2))
sketch5.addConstraint(Sketcher.Constraint("Symmetric", 13, 3, 32, 3, -2))
sketch5.addConstraint(Sketcher.Constraint("Symmetric", 12, 3, 33, 3, -2))
sketch5.addConstraint(Sketcher.Constraint("Symmetric", 23, 3, 34, 3, -2))
sketch5.addConstraint(Sketcher.Constraint("Symmetric", 22, 3, 35, 3, -2))
sketch5.addConstraint(Sketcher.Constraint("Horizontal", 0, 3, 1, 3))
sketch5.addConstraint(Sketcher.Constraint("Horizontal", 1, 3, 2, 3))
sketch5.addConstraint(Sketcher.Constraint("Horizontal", 2, 3, 3, 3))
sketch5.addConstraint(Sketcher.Constraint("Horizontal", 3, 3, 4, 3))
sketch5.addConstraint(Sketcher.Constraint("Horizontal", 4, 3, 5, 3))
sketch5.addConstraint(Sketcher.Constraint("Horizontal", 5, 3, 6, 3))
sketch5.addConstraint(Sketcher.Constraint("Horizontal", 6, 3, 7, 3))
sketch5.addConstraint(Sketcher.Constraint("Horizontal", 7, 3, 8, 3))
sketch5.addConstraint(Sketcher.Constraint("Horizontal", 8, 3, 9, 3))
sketch5.addConstraint(Sketcher.Constraint("Horizontal", 9, 3, 10, 3))
sketch5.addConstraint(Sketcher.Constraint("Horizontal", 10, 3, 11, 3))
sketch5.addConstraint(Sketcher.Constraint("Diameter", 0, Q("0.275 in")))
sketch5.addConstraint(Sketcher.Constraint("DistanceX", 0, 3, 1, 3, Q("1 in")))
sketch5.addConstraint(Sketcher.Constraint("DistanceX", 1, 3, 2, 3, Q("1 in")))
sketch5.addConstraint(Sketcher.Constraint("DistanceX", 2, 3, 3, 3, Q("1 in")))
sketch5.addConstraint(Sketcher.Constraint("DistanceX", 3, 3, 4, 3, Q("1 in")))
sketch5.addConstraint(Sketcher.Constraint("DistanceX", 4, 3, 5, 3, Q("1 in")))
sketch5.addConstraint(Sketcher.Constraint("DistanceX", 5, 3, 6, 3, Q("1 in")))
sketch5.addConstraint(Sketcher.Constraint("DistanceX", 6, 3, 7, 3, Q("1 in")))
sketch5.addConstraint(Sketcher.Constraint("DistanceX", 7, 3, 8, 3, Q("1 in")))
sketch5.addConstraint(Sketcher.Constraint("DistanceX", 8, 3, 9, 3, Q("1 in")))
sketch5.addConstraint(Sketcher.Constraint("DistanceX", 9, 3, 10, 3, Q("1 in")))
sketch5.addConstraint(Sketcher.Constraint("DistanceX", 10, 3, 11, 3, Q("1 in")))
sketch5.addConstraint(Sketcher.Constraint("DistanceX", 11, 3, 12, 3, Q("1 in")))
sketch5.addConstraint(Sketcher.Constraint("DistanceY", 12, 3, 11, 3, Q("11 in")))
pocket2 = body.newObject("PartDesign::Pocket", "Pocket001")
pocket2.Profile = sketch5
pocket2.Type = "ThroughAll"
pocket2.Reversed = True

# Sketch on YZ plane
sketch6 = body.newObject("Sketcher::SketchObject", "Sketch005")
sketch6.AttachmentSupport = (doc.getObject("YZ_Plane"), [""])
sketch6.MapMode = "FlatFace"
sketch6.AttachmentOffset = App.Placement(Vector(0, 0, -94.5875), App.Rotation())
sketch6.addGeometry(Part.LineSegment(Vector(173, 171, 0), Vector(-83, 171, 0)), False)
sketch6.addGeometry(Part.LineSegment(Vector(-83, 171, 0), Vector(-83, -156, 0)), False)
sketch6.addGeometry(Part.LineSegment(Vector(-83, -156, 0), Vector(173, -156, 0)), False)
sketch6.addGeometry(Part.LineSegment(Vector(173, -156, 0), Vector(173, 171, 0)), False)
sketch6.addConstraint(Sketcher.Constraint("Coincident", 0, 2, 1, 1))
sketch6.addConstraint(Sketcher.Constraint("Coincident", 1, 2, 2, 1))
sketch6.addConstraint(Sketcher.Constraint("Coincident", 2, 2, 3, 1))
sketch6.addConstraint(Sketcher.Constraint("Coincident", 3, 2, 0, 1))
sketch6.addConstraint(Sketcher.Constraint("Horizontal", 0))
sketch6.addConstraint(Sketcher.Constraint("Vertical", 1))
sketch6.addConstraint(Sketcher.Constraint("Horizontal", 2))
sketch6.addConstraint(Sketcher.Constraint("Vertical", 3))
sketch6.addConstraint(Sketcher.Constraint("DistanceX", 0, 2, 0, 1, 256.091806))
sketch6.addConstraint(Sketcher.Constraint("DistanceY", 1, 2, 1, 1, 327.140785))
sketch6.addConstraint(Sketcher.Constraint("DistanceX", 0, 2, -1, 1, 83.135389))
sketch6.addConstraint(Sketcher.Constraint("DistanceY", -1, 1, 0, 2, 171.399009))
pocket3 = body.newObject("PartDesign::Pocket", "Pocket002")
pocket3.Profile = sketch6
pocket3.Type = "ThroughAll"
pocket3.Reversed = True

# Sketch on YZ plane
sketch7 = body.newObject("Sketcher::SketchObject", "Sketch006")
sketch7.AttachmentSupport = (doc.getObject("YZ_Plane"), [""])
sketch7.MapMode = "FlatFace"
sketch7.AttachmentOffset = App.Placement(Vector(0, 0, -94.5875), App.Rotation())
sketch7.addGeometry(Part.LineSegment(Vector(46, 130, 0), Vector(-3, 130, 0)), False)
sketch7.addGeometry(Part.LineSegment(Vector(-3, 130, 0), Vector(-3, -130, 0)), False)
sketch7.addGeometry(Part.LineSegment(Vector(-3, -130, 0), Vector(46, -130, 0)), False)
sketch7.addGeometry(Part.LineSegment(Vector(46, -130, 0), Vector(46, 130, 0)), False)
sketch7.addConstraint(Sketcher.Constraint("Coincident", 0, 2, 1, 1))
sketch7.addConstraint(Sketcher.Constraint("Coincident", 1, 2, 2, 1))
sketch7.addConstraint(Sketcher.Constraint("Coincident", 2, 2, 3, 1))
sketch7.addConstraint(Sketcher.Constraint("Coincident", 3, 2, 0, 1))
sketch7.addConstraint(Sketcher.Constraint("Horizontal", 0))
sketch7.addConstraint(Sketcher.Constraint("Vertical", 1))
sketch7.addConstraint(Sketcher.Constraint("Horizontal", 2))
sketch7.addConstraint(Sketcher.Constraint("Vertical", 3))
sketch7.addConstraint(Sketcher.Constraint("DistanceY", 1, 2, 1, 1, Q("10.25 in")))
sketch7.addConstraint(Sketcher.Constraint("DistanceX", -1, 1, 2, 2, Q("1.8 in")))
sketch7.addConstraint(Sketcher.Constraint("DistanceX", 0, 2, 0, 1, Q("1.925 in")))
sketch7.addConstraint(Sketcher.Constraint("DistanceY", -1, 1, 0, 2, Q("5.125 in")))
pad4 = body.newObject("PartDesign::Pad", "Pad003")
pad4.Profile = sketch7
pad4.Length = Q("0.125 in")

doc.recompute()
